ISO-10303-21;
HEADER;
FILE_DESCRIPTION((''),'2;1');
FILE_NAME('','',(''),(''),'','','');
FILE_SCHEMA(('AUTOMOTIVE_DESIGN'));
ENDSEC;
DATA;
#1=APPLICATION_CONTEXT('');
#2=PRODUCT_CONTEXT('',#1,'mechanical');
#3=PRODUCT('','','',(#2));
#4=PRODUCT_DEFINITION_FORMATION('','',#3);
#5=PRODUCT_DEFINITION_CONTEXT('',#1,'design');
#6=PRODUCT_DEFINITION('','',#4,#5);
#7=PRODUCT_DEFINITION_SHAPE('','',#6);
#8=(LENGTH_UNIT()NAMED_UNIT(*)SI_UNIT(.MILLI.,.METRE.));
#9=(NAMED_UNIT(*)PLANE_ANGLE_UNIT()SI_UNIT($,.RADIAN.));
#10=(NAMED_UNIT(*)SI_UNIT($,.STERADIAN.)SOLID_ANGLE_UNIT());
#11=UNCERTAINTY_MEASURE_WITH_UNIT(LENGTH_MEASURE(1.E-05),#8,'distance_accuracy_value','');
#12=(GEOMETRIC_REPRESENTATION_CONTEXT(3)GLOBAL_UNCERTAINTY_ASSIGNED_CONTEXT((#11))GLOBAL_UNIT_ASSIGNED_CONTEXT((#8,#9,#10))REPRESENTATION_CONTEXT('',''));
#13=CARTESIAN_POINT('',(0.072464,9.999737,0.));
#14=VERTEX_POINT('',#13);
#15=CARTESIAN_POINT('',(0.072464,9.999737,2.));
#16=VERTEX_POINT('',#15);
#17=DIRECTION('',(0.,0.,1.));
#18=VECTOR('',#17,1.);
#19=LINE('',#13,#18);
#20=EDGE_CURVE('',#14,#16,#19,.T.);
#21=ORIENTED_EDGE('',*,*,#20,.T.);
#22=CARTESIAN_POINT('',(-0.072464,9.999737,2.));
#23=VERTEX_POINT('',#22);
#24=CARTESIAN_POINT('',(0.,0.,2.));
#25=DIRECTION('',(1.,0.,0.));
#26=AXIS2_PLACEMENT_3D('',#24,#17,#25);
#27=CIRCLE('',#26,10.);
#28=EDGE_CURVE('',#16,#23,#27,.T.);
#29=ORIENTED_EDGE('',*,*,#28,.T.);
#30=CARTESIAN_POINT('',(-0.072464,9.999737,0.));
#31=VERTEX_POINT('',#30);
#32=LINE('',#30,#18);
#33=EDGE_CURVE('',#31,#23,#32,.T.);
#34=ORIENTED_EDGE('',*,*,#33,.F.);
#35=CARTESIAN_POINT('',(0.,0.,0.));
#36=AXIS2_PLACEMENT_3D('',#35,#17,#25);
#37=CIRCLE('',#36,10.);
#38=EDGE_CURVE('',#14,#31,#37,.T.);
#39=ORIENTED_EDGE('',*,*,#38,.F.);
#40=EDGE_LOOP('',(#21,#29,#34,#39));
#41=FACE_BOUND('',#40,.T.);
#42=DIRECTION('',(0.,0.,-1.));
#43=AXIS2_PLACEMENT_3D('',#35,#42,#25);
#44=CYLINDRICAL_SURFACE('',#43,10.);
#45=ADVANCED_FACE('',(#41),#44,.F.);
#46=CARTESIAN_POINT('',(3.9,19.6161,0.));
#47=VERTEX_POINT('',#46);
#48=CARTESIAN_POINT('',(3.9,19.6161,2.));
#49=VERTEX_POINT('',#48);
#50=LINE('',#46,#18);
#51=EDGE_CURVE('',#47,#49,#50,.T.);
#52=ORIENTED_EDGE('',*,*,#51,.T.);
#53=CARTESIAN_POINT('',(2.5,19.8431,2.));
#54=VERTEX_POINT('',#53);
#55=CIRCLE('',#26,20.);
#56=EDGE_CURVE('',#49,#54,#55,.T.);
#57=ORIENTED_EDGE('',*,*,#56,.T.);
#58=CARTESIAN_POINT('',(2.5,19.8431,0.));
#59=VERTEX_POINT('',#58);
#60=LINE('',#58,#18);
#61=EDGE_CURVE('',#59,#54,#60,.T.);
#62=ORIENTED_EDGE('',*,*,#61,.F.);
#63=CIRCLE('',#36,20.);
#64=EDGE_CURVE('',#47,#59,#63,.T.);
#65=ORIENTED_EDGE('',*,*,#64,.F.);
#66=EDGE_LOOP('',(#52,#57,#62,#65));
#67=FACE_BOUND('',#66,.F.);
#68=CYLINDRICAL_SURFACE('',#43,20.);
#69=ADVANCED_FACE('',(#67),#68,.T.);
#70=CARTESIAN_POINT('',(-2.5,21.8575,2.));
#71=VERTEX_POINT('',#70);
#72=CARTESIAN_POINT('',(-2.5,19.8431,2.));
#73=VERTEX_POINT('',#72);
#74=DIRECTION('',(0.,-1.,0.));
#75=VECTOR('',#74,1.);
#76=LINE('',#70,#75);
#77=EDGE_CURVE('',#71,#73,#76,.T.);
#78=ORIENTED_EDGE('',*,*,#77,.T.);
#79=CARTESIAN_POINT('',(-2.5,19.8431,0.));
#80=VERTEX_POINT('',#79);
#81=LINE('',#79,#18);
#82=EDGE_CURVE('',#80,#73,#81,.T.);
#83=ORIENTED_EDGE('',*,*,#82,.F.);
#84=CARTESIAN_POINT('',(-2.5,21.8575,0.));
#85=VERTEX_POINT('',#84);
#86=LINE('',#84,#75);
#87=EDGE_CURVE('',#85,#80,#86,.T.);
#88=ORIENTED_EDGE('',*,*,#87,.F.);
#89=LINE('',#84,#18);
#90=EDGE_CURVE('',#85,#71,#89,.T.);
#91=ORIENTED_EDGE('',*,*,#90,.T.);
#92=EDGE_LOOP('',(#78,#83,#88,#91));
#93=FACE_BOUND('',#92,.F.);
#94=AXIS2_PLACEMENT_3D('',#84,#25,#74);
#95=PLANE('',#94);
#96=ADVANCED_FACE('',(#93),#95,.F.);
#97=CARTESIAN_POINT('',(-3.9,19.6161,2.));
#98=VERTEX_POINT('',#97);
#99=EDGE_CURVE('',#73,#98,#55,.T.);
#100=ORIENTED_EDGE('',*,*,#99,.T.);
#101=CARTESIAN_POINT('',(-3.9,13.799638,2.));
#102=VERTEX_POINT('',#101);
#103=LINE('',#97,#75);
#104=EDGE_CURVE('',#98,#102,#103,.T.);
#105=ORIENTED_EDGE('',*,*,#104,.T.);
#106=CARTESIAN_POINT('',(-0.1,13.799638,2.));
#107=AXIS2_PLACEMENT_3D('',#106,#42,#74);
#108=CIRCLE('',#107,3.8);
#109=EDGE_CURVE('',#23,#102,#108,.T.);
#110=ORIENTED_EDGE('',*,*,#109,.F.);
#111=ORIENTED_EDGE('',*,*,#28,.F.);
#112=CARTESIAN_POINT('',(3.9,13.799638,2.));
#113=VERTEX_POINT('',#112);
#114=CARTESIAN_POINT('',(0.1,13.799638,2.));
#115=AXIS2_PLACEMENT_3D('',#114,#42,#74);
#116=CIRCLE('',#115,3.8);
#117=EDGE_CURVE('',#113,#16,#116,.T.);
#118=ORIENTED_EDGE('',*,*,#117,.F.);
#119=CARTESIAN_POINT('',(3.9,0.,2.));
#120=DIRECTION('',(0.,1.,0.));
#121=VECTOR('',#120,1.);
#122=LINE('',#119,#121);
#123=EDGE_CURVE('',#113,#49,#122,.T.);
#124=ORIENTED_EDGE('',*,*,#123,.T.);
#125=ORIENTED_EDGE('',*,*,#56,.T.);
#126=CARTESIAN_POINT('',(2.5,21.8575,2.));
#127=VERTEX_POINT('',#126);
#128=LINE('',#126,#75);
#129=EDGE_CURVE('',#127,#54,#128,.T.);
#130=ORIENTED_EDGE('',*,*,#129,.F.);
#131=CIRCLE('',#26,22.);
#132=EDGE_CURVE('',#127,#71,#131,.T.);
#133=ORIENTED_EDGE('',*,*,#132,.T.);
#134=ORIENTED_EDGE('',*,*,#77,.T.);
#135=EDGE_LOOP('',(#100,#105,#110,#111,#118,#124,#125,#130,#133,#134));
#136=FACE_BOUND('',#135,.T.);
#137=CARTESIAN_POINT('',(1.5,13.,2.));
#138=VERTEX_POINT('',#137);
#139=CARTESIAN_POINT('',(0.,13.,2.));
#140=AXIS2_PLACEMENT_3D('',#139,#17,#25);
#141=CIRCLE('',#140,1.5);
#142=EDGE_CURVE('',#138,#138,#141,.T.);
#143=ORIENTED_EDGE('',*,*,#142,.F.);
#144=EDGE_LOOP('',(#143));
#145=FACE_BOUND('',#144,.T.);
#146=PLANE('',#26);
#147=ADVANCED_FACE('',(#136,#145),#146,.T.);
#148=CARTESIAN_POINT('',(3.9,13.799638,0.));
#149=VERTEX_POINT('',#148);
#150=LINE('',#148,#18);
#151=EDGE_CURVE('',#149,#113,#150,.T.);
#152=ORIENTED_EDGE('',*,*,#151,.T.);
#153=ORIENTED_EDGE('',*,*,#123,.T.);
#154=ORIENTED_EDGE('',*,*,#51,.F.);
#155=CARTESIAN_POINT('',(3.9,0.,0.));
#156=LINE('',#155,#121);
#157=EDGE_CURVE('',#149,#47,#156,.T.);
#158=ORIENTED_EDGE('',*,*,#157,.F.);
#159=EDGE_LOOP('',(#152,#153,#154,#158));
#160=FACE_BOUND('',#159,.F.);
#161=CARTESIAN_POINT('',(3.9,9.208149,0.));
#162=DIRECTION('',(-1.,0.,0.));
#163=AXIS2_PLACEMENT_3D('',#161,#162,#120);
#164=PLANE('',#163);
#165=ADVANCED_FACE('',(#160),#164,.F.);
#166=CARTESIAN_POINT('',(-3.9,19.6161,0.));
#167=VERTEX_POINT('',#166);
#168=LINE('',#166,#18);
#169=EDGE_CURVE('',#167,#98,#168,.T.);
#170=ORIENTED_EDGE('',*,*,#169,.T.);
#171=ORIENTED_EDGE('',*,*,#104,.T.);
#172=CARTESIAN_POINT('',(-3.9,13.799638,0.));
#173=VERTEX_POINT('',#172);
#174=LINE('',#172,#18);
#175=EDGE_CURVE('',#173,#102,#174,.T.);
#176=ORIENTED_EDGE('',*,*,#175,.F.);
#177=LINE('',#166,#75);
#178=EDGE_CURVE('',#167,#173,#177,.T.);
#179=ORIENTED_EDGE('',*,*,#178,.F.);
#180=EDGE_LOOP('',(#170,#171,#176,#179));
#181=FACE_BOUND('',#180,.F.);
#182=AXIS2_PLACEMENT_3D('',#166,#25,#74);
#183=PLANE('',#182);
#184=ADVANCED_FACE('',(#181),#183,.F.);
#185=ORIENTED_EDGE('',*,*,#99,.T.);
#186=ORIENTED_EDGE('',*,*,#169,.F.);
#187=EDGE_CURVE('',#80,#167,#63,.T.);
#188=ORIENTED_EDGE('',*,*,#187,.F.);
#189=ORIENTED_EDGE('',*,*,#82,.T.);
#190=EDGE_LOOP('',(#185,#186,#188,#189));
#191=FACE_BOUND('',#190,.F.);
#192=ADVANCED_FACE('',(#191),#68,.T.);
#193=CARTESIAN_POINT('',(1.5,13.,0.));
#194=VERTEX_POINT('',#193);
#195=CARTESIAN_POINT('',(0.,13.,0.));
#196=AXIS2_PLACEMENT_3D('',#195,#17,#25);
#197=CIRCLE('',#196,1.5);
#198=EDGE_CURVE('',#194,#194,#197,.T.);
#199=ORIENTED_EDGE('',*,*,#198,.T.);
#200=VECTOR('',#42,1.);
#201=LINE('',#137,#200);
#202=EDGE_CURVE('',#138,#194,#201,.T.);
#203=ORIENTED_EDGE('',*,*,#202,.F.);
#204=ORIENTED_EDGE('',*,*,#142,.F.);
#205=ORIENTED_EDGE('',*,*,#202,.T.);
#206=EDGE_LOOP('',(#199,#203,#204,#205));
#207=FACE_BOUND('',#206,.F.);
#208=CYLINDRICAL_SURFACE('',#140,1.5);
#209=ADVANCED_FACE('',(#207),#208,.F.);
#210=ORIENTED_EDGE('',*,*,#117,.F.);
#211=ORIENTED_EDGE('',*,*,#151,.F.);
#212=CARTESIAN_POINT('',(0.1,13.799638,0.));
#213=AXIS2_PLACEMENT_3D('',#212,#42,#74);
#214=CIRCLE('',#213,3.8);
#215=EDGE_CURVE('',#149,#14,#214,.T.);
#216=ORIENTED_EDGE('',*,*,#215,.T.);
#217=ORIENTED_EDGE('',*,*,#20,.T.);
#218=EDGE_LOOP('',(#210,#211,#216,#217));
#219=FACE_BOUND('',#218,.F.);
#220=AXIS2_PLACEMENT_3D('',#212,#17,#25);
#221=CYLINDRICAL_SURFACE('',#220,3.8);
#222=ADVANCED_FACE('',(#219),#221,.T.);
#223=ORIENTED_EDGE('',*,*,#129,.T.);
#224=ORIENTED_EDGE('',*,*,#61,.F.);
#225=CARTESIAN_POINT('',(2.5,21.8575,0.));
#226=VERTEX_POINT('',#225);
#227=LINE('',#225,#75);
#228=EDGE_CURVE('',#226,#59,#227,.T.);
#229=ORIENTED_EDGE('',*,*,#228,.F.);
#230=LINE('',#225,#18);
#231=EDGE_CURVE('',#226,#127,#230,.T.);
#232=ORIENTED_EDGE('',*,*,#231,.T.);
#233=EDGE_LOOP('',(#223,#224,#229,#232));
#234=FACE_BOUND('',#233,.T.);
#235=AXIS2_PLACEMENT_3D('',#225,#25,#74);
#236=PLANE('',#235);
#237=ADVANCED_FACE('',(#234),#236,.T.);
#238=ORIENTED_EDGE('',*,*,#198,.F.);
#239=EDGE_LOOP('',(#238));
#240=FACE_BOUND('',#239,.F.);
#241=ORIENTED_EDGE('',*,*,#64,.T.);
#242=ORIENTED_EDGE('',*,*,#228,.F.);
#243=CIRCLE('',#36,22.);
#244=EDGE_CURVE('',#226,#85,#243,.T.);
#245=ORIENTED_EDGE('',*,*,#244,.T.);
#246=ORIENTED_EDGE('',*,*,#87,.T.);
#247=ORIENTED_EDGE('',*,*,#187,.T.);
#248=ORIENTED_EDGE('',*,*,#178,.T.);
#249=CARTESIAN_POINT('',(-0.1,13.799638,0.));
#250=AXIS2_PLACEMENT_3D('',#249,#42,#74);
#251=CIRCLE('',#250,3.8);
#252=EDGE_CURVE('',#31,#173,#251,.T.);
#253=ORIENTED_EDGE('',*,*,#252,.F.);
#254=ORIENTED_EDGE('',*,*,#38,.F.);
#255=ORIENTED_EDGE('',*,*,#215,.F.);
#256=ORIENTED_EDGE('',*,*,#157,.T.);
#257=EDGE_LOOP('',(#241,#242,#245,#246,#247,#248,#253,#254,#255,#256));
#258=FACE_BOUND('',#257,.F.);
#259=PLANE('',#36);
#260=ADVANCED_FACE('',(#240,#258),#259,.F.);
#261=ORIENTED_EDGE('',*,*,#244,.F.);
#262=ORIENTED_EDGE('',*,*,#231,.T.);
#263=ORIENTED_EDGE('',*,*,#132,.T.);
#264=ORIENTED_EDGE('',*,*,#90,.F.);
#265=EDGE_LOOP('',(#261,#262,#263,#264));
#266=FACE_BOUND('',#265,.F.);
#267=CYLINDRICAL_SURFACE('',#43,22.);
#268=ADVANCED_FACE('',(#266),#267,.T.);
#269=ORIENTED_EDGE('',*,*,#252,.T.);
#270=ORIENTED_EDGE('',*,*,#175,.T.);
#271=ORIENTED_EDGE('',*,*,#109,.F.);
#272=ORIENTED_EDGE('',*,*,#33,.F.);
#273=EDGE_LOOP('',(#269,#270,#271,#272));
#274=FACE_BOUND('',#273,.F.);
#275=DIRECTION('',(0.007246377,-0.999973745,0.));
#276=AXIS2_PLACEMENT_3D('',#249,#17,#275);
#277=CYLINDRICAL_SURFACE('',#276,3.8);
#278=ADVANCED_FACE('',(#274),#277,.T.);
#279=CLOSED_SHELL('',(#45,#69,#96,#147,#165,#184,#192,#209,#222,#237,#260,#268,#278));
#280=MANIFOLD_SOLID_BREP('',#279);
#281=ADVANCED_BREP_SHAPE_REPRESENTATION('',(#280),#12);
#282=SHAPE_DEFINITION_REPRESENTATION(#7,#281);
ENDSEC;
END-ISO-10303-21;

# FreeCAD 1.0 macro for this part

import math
import FreeCAD as App
import Part
import Sketcher
Q = App.Units.Quantity


def edges_at(feature, points):
    """Names of the edges that pass closest to the given points."""
    edges = feature.Shape.Edges
    near = lambda p: min(range(len(edges)), key=lambda i: edges[i].distToShape(Part.Vertex(*p))[0])
    return sorted({f"Edge{near(p) + 1}" for p in points})

doc = App.newDocument("Part")
body = doc.addObject("PartDesign::Body", "Body")

# Sketch on XY plane
sketch1 = doc.addObject("Sketcher::SketchObject", "Sketch")
body.addObject(sketch1)
sketch1.AttachmentSupport = (doc.XY_Plane, [""])
sketch1.MapMode = "FlatFace"
sketch1.addGeometry(Part.LineSegment(App.Vector(3.9, 9.208149, 0), App.Vector(3.9, 19.6161, 0)), False)
sketch1.addGeometry(Part.ArcOfCircle(Part.Circle(App.Vector(0, 0, 0), App.Vector(0, 0, 1), 20), math.radians(78.755296), math.radians(82.819232)), False)
sketch1.addGeometry(Part.LineSegment(App.Vector(2.5, 19.8431, 0), App.Vector(2.5, 21.8575, 0)), False)
sketch1.addGeometry(Part.ArcOfCircle(Part.Circle(App.Vector(0, 0, 0), App.Vector(0, 0, 1), 22), math.radians(83.475023), math.radians(96.524977)), False)
sketch1.addGeometry(Part.LineSegment(App.Vector(-2.5, 21.8575, 0), App.Vector(-2.5, 19.8431, 0)), False)
sketch1.addGeometry(Part.ArcOfCircle(Part.Circle(App.Vector(0, 0, 0), App.Vector(0, 0, 1), 20), math.radians(97.180768), math.radians(101.244704)), False)
sketch1.addGeometry(Part.LineSegment(App.Vector(-3.9, 19.6161, 0), App.Vector(-3.9, 9.208149, 0)), False)
sketch1.addGeometry(Part.ArcOfCircle(Part.Circle(App.Vector(0, 0, 0), App.Vector(0, 0, 1), 10), math.radians(67.045501), math.radians(112.954499)), False)
sketch1.addConstraint(Sketcher.Constraint("Coincident", 0, 2, 1, 1))
sketch1.addConstraint(Sketcher.Constraint("Coincident", 1, 2, 2, 1))
sketch1.addConstraint(Sketcher.Constraint("Coincident", 2, 2, 3, 1))
sketch1.addConstraint(Sketcher.Constraint("Coincident", 3, 2, 4, 1))
sketch1.addConstraint(Sketcher.Constraint("Coincident", 4, 2, 5, 1))
sketch1.addConstraint(Sketcher.Constraint("Coincident", 5, 2, 6, 1))
sketch1.addConstraint(Sketcher.Constraint("Coincident", 6, 2, 7, 2))
sketch1.addConstraint(Sketcher.Constraint("Coincident", 7, 1, 0, 1))
sketch1.addConstraint(Sketcher.Constraint("Vertical", 0))
sketch1.addConstraint(Sketcher.Constraint("Vertical", 2))
sketch1.addConstraint(Sketcher.Constraint("Vertical", 4))
sketch1.addConstraint(Sketcher.Constraint("Vertical", 6))
sketch1.addConstraint(Sketcher.Constraint("Coincident", 1, 3, -1, 1))
sketch1.addConstraint(Sketcher.Constraint("Coincident", 3, 3, -1, 1))
sketch1.addConstraint(Sketcher.Constraint("Coincident", 5, 3, -1, 1))
sketch1.addConstraint(Sketcher.Constraint("Coincident", 7, 3, -1, 1))
sketch1.addConstraint(Sketcher.Constraint("Equal", 1, 5))
sketch1.addConstraint(Sketcher.Constraint("Horizontal", 2, 2, 3, 2))
sketch1.addConstraint(Sketcher.Constraint("Horizontal", 0, 2, 5, 2))
sketch1.addConstraint(Sketcher.Constraint("Radius", 1, Q("20 mm")))
sketch1.addConstraint(Sketcher.Constraint("Radius", 7, Q("10 mm")))
sketch1.addConstraint(Sketcher.Constraint("Radius", 3, Q("22 mm")))
sketch1.addConstraint(Sketcher.Constraint("DistanceX", 3, 2, 2, 2, Q("5 mm")))
sketch1.addConstraint(Sketcher.Constraint("DistanceX", 5, 2, 0, 2, Q("7.8 mm")))
pad1 = doc.addObject("PartDesign::Pad", "Pad")
body.addObject(pad1)
pad1.Profile = sketch1
pad1.Length = 2

# Sketch on XY plane
sketch2 = doc.addObject("Sketcher::SketchObject", "Sketch001")
body.addObject(sketch2)
sketch2.AttachmentSupport = (doc.XY_Plane, [""])
sketch2.MapMode = "FlatFace"
sketch2.AttachmentOffset = App.Placement(App.Vector(0, 0, 2), App.Rotation())
sketch2.addGeometry(Part.Circle(App.Vector(0, 13, 0), App.Vector(0, 0, 1), 1.5), False)
sketch2.addConstraint(Sketcher.Constraint("PointOnObject", 0, 3, -2))
sketch2.addConstraint(Sketcher.Constraint("Diameter", 0, Q("3 mm")))
sketch2.addConstraint(Sketcher.Constraint("DistanceY", -1, 1, 0, 3, Q("13 mm")))
pocket1 = doc.addObject("PartDesign::Pocket", "Pocket")
body.addObject(pocket1)
pocket1.Profile = sketch2
pocket1.Type = "ThroughAll"
doc.recompute()

fillet = doc.addObject("PartDesign::Fillet", "Fillet")
body.addObject(fillet)
fillet.Base = (pocket1, edges_at(pocket1, [(-3.9, 9.208, 1), (3.9, 9.208, 1)]))
fillet.Radius = 3.8

doc.recompute()
